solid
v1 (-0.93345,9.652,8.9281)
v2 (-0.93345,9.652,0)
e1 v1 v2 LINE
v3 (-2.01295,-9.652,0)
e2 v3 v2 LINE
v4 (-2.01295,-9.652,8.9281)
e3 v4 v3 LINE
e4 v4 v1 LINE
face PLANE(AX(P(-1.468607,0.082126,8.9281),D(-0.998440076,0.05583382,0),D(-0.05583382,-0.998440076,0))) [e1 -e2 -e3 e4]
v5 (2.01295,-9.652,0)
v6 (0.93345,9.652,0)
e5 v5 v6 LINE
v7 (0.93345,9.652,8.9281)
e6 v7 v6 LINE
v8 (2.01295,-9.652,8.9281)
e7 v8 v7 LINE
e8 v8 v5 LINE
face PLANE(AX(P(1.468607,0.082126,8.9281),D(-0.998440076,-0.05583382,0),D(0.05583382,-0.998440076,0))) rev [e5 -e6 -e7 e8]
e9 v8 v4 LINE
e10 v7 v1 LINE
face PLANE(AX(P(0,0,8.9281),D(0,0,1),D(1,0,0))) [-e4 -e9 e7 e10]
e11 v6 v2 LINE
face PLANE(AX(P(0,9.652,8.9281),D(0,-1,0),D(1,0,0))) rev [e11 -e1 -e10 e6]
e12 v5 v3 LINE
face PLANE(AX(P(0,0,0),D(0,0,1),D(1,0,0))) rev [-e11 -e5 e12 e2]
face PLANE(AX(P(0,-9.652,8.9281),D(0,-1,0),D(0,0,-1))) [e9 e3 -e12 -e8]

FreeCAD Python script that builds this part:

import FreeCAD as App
import Part
import Sketcher
from FreeCAD import Vector


def add_polygon(sketch, points):
    """Adds a closed chain of lines whose ends are joined by coincident constraints."""
    first, n = sketch.GeometryCount, len(points)
    for a, b in zip(points, points[1:] + points[:1]):
        sketch.addGeometry(Part.LineSegment(App.Vector(*a, 0), App.Vector(*b, 0)), False)
    for i in range(n):
        sketch.addConstraint(Sketcher.Constraint("Coincident", first + i, 2, first + (i + 1) % n, 1))

doc = App.newDocument("Part")
body = doc.addObject("PartDesign::Body", "Body")

sketch1 = body.newObject("Sketcher::SketchObject", "Sketch")
sketch1.AttachmentSupport = (doc.getObject("XY_Plane"), [""])
sketch1.MapMode = "FlatFace"
add_polygon(sketch1, [(-0.9, 9.7), (-2, -9.7), (2, -9.7), (0.9, 9.7)])
sketch1.addConstraint(Sketcher.Constraint("Horizontal", 1))
sketch1.addConstraint(Sketcher.Constraint("Horizontal", 3))
sketch1.addConstraint(Sketcher.Constraint("Equal", 0, 2))
sketch1.addConstraint(Sketcher.Constraint("DistanceX", 1, 1, 1, 2, 4.0259))
sketch1.addConstraint(Sketcher.Constraint("DistanceX", 3, 2, 3, 1, 1.8669))
sketch1.addConstraint(Sketcher.Constraint("DistanceY", 0, 2, -1, 1, 9.652))
sketch1.addConstraint(Sketcher.Constraint("DistanceY", -1, 1, 2, 2, 9.652))
sketch1.addConstraint(Sketcher.Constraint("DistanceX", 0, 2, -1, 1, 2.01295))
pad1 = body.newObject("PartDesign::Pad", "Pad")
pad1.Profile = sketch1
pad1.Length = 8.9281

doc.recompute()
